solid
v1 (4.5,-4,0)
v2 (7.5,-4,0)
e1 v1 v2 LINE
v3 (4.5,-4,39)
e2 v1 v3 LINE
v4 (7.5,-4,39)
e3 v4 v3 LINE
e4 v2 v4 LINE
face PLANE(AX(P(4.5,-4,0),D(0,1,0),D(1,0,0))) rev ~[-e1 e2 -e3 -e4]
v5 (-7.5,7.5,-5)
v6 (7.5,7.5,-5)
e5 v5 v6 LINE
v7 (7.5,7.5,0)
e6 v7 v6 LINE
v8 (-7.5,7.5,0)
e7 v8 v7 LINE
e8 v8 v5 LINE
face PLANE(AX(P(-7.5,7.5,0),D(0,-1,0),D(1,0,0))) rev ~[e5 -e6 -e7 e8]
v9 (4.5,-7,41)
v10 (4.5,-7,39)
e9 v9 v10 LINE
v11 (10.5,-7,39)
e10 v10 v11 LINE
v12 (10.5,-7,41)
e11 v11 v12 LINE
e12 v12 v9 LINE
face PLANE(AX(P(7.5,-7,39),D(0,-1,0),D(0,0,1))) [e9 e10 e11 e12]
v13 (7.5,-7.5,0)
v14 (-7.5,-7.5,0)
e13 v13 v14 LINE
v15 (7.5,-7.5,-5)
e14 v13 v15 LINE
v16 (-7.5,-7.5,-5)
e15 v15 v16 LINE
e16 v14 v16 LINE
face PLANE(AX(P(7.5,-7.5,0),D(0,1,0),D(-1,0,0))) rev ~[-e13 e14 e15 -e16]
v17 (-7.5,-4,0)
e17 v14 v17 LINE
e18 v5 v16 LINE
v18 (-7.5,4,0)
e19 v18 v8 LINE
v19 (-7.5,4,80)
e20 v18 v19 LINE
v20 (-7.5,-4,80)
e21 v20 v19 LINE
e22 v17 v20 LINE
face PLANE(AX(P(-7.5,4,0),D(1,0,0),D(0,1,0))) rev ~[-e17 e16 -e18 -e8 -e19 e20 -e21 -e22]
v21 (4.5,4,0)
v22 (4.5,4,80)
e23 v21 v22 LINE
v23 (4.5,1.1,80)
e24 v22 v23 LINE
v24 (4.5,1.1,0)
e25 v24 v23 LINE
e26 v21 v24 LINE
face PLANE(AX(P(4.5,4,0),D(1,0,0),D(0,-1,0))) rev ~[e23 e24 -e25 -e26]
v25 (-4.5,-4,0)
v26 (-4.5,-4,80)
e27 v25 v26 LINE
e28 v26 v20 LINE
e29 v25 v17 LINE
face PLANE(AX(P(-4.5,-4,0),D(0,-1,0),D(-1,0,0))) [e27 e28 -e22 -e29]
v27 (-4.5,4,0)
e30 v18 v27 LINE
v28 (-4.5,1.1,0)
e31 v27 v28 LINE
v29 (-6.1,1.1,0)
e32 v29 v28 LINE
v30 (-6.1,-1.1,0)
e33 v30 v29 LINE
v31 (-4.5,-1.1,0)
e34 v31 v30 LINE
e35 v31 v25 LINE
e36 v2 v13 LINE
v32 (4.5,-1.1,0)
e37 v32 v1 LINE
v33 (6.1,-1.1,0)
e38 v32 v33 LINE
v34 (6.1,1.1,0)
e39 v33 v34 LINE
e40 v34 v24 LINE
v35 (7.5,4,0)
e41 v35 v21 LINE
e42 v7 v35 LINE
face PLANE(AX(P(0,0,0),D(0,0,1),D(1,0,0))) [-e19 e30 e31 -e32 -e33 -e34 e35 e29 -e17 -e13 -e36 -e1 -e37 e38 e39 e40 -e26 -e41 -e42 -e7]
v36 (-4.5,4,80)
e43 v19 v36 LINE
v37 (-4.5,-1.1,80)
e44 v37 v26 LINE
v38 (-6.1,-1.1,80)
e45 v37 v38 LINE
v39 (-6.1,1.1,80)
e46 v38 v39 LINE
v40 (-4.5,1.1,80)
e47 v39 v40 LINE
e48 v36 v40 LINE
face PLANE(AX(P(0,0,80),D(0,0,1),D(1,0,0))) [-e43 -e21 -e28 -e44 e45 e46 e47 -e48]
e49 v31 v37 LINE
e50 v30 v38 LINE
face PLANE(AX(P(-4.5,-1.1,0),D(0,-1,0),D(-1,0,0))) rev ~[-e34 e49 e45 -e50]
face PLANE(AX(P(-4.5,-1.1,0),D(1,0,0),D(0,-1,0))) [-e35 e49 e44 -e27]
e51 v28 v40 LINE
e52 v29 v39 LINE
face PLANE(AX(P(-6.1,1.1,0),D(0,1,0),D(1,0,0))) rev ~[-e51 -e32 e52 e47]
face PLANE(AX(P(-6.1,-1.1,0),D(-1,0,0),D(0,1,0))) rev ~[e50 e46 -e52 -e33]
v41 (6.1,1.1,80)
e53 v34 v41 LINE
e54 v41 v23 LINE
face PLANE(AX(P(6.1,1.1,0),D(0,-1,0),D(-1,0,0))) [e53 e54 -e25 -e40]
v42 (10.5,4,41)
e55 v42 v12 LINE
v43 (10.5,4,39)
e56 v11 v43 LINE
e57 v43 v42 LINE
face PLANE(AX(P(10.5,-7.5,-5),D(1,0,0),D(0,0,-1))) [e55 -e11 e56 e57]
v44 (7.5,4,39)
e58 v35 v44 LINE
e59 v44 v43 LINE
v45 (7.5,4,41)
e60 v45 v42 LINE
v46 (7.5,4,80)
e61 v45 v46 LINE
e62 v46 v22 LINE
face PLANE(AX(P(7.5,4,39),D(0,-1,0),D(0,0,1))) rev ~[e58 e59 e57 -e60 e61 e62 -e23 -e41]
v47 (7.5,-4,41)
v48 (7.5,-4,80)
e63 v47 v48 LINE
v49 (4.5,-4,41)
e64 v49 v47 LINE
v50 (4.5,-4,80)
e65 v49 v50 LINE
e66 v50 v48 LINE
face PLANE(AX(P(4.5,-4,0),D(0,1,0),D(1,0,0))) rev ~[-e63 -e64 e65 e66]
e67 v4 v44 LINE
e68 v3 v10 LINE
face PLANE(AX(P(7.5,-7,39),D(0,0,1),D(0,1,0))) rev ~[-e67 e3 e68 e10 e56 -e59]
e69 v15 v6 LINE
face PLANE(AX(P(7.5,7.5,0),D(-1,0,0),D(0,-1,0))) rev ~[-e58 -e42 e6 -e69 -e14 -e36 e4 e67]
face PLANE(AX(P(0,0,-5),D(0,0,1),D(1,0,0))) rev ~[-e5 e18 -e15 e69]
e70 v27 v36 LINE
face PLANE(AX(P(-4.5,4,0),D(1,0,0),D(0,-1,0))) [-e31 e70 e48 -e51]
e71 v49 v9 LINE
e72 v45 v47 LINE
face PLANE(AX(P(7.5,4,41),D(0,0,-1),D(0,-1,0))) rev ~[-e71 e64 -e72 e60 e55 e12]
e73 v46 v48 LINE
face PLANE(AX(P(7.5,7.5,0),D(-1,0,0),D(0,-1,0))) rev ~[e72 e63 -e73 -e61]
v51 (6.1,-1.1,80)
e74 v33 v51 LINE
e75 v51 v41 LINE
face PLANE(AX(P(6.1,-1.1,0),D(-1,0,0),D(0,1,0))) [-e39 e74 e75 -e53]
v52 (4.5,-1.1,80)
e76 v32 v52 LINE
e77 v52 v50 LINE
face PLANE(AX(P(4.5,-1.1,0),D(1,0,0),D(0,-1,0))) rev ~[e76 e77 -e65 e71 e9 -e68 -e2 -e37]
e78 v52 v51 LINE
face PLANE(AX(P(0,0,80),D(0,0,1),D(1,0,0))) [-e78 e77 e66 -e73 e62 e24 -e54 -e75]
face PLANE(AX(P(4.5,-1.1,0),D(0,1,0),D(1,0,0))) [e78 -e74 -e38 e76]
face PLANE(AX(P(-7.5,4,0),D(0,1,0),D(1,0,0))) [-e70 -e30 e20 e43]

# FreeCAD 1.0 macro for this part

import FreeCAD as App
import Part
import Sketcher

V = App.Vector
Q = App.Units.Quantity


def add_polygon(sketch, points):
    """Adds a closed chain of lines whose ends are joined by coincident constraints."""
    first, n = sketch.GeometryCount, len(points)
    for a, b in zip(points, points[1:] + points[:1]):
        sketch.addGeometry(Part.LineSegment(App.Vector(*a, 0), App.Vector(*b, 0)), False)
    for i in range(n):
        sketch.addConstraint(Sketcher.Constraint("Coincident", first + i, 2, first + (i + 1) % n, 1))

doc = App.newDocument("Part")
body = doc.addObject("PartDesign::Body", "Body")

sketch1 = body.newObject("Sketcher::SketchObject", "Sketch")
sketch1.AttachmentSupport = (doc.getObject("XY_Plane"), [""])
sketch1.MapMode = "FlatFace"
add_polygon(sketch1, [(7.5, 7.5), (-7.5, 7.5), (-7.5, -7.5), (7.5, -7.5)])
sketch1.addConstraint([
    Sketcher.Constraint("Horizontal", 0),
    Sketcher.Constraint("Vertical", 1),
    Sketcher.Constraint("Horizontal", 2),
    Sketcher.Constraint("Vertical", 3),
    Sketcher.Constraint("Symmetric", 0, 2, 2, 2, -1, 1),
    Sketcher.Constraint("Equal", 2, 1),
    Sketcher.Constraint("DistanceX", 0, 2, 0, 1, Q("15 mm")),
])
pad1 = body.newObject("PartDesign::Pad", "Pad")
pad1.Profile = sketch1
pad1.Length = 5
pad1.Reversed = True

sketch2 = body.newObject("Sketcher::SketchObject", "Sketch001")
sketch2.AttachmentSupport = (doc.getObject("XY_Plane"), [""])
sketch2.MapMode = "FlatFace"
add_polygon(sketch2, [(-4.5, 4), (-7.5, 4), (-7.5, -4), (-4.5, -4), (-4.5, -1.1), (-6.1, -1.1), (-6.1, 1.1), (-4.5, 1.1)])
add_polygon(sketch2, [(7.5, -4), (7.5, 4), (4.5, 4), (4.5, 1.1), (6.1, 1.1), (6.1, -1.1), (4.5, -1.1), (4.5, -4)])
sketch2.addConstraint([
    Sketcher.Constraint("Horizontal", 0),
    Sketcher.Constraint("Vertical", 1),
    Sketcher.Constraint("Horizontal", 2),
    Sketcher.Constraint("Vertical", 3),
    Sketcher.Constraint("Horizontal", 4),
    Sketcher.Constraint("Vertical", 5),
    Sketcher.Constraint("Horizontal", 6),
    Sketcher.Constraint("Vertical", 7),
    Sketcher.Constraint("Vertical", 8),
    Sketcher.Constraint("Horizontal", 9),
    Sketcher.Constraint("Vertical", 10),
    Sketcher.Constraint("Horizontal", 11),
    Sketcher.Constraint("Vertical", 12),
    Sketcher.Constraint("Horizontal", 13),
    Sketcher.Constraint("Vertical", 14),
    Sketcher.Constraint("Horizontal", 15),
    Sketcher.Constraint("Symmetric", 1, 2, 8, 2, -1, 1),
    Sketcher.Constraint("Symmetric", 3, 2, 10, 2, -1, 1),
    Sketcher.Constraint("Symmetric", 5, 2, 12, 2, -1, 1),
    Sketcher.Constraint("Symmetric", 7, 2, 14, 2, -1, 1),
    Sketcher.Constraint("Symmetric", 7, 2, 9, 2, -2),
    Sketcher.Constraint("Horizontal", 6, 2, 10, 2),
    Sketcher.Constraint("DistanceX", 0, 2, 0, 1, Q("3 mm")),
    Sketcher.Constraint("DistanceY", 1, 2, 1, 1, Q("8 mm")),
    Sketcher.Constraint("DistanceY", 5, 1, 5, 2, Q("2.2 mm")),
    Sketcher.Constraint("DistanceX", 4, 2, 4, 1, Q("1.6 mm")),
    Sketcher.Constraint("DistanceX", 7, 2, 8, 2, Q("12 mm")),
])
pad2 = body.newObject("PartDesign::Pad", "Pad001")
pad2.Profile = sketch2
pad2.Length = 80

sketch3 = body.newObject("Sketcher::SketchObject", "Sketch002")
sketch3.AttachmentSupport = (doc.getObject("XZ_Plane"), [""])
sketch3.MapMode = "FlatFace"
sketch3.AttachmentOffset = App.Placement(V(0, 0, 4), App.Rotation())
add_polygon(sketch3, [(4.5, 39), (7.5, 39), (7.5, 41), (4.5, 41)])
sketch3.addConstraint([
    Sketcher.Constraint("Horizontal", 0),
    Sketcher.Constraint("Vertical", 1),
    Sketcher.Constraint("Horizontal", 2),
    Sketcher.Constraint("Vertical", 3),
    Sketcher.Constraint("DistanceY", 1, 1, 1, 2, Q("2 mm")),
    Sketcher.Constraint("DistanceX", 0, 1, 0, 2, Q("3 mm")),
    Sketcher.Constraint("DistanceY", -1, 1, 0, 2, Q("39 mm")),
    Sketcher.Constraint("DistanceX", -1, 1, 0, 2, Q("7.5 mm")),
])
pad3 = body.newObject("PartDesign::Pad", "Pad002")
pad3.Profile = sketch3
pad3.Length = 3

sketch4 = body.newObject("Sketcher::SketchObject", "Sketch003")
sketch4.AttachmentSupport = (doc.getObject("YZ_Plane"), [""])
sketch4.MapMode = "FlatFace"
sketch4.AttachmentOffset = App.Placement(V(0, 0, 7.5), App.Rotation())
add_polygon(sketch4, [(-7, 41), (-7, 39), (4, 39), (4, 41)])
sketch4.addConstraint([
    Sketcher.Constraint("Vertical", 0),
    Sketcher.Constraint("Horizontal", 1),
    Sketcher.Constraint("Vertical", 2),
    Sketcher.Constraint("Horizontal", 3),
    Sketcher.Constraint("DistanceY", 0, 2, 0, 1, Q("2 mm")),
    Sketcher.Constraint("DistanceX", 1, 1, 1, 2, Q("11 mm")),
    Sketcher.Constraint("DistanceX", 0, 2, -1, 1, Q("7 mm")),
    Sketcher.Constraint("DistanceY", -1, 1, 0, 2, Q("39 mm")),
])
pad4 = body.newObject("PartDesign::Pad", "Pad003")
pad4.Profile = sketch4
pad4.Length = 3

doc.recompute()
